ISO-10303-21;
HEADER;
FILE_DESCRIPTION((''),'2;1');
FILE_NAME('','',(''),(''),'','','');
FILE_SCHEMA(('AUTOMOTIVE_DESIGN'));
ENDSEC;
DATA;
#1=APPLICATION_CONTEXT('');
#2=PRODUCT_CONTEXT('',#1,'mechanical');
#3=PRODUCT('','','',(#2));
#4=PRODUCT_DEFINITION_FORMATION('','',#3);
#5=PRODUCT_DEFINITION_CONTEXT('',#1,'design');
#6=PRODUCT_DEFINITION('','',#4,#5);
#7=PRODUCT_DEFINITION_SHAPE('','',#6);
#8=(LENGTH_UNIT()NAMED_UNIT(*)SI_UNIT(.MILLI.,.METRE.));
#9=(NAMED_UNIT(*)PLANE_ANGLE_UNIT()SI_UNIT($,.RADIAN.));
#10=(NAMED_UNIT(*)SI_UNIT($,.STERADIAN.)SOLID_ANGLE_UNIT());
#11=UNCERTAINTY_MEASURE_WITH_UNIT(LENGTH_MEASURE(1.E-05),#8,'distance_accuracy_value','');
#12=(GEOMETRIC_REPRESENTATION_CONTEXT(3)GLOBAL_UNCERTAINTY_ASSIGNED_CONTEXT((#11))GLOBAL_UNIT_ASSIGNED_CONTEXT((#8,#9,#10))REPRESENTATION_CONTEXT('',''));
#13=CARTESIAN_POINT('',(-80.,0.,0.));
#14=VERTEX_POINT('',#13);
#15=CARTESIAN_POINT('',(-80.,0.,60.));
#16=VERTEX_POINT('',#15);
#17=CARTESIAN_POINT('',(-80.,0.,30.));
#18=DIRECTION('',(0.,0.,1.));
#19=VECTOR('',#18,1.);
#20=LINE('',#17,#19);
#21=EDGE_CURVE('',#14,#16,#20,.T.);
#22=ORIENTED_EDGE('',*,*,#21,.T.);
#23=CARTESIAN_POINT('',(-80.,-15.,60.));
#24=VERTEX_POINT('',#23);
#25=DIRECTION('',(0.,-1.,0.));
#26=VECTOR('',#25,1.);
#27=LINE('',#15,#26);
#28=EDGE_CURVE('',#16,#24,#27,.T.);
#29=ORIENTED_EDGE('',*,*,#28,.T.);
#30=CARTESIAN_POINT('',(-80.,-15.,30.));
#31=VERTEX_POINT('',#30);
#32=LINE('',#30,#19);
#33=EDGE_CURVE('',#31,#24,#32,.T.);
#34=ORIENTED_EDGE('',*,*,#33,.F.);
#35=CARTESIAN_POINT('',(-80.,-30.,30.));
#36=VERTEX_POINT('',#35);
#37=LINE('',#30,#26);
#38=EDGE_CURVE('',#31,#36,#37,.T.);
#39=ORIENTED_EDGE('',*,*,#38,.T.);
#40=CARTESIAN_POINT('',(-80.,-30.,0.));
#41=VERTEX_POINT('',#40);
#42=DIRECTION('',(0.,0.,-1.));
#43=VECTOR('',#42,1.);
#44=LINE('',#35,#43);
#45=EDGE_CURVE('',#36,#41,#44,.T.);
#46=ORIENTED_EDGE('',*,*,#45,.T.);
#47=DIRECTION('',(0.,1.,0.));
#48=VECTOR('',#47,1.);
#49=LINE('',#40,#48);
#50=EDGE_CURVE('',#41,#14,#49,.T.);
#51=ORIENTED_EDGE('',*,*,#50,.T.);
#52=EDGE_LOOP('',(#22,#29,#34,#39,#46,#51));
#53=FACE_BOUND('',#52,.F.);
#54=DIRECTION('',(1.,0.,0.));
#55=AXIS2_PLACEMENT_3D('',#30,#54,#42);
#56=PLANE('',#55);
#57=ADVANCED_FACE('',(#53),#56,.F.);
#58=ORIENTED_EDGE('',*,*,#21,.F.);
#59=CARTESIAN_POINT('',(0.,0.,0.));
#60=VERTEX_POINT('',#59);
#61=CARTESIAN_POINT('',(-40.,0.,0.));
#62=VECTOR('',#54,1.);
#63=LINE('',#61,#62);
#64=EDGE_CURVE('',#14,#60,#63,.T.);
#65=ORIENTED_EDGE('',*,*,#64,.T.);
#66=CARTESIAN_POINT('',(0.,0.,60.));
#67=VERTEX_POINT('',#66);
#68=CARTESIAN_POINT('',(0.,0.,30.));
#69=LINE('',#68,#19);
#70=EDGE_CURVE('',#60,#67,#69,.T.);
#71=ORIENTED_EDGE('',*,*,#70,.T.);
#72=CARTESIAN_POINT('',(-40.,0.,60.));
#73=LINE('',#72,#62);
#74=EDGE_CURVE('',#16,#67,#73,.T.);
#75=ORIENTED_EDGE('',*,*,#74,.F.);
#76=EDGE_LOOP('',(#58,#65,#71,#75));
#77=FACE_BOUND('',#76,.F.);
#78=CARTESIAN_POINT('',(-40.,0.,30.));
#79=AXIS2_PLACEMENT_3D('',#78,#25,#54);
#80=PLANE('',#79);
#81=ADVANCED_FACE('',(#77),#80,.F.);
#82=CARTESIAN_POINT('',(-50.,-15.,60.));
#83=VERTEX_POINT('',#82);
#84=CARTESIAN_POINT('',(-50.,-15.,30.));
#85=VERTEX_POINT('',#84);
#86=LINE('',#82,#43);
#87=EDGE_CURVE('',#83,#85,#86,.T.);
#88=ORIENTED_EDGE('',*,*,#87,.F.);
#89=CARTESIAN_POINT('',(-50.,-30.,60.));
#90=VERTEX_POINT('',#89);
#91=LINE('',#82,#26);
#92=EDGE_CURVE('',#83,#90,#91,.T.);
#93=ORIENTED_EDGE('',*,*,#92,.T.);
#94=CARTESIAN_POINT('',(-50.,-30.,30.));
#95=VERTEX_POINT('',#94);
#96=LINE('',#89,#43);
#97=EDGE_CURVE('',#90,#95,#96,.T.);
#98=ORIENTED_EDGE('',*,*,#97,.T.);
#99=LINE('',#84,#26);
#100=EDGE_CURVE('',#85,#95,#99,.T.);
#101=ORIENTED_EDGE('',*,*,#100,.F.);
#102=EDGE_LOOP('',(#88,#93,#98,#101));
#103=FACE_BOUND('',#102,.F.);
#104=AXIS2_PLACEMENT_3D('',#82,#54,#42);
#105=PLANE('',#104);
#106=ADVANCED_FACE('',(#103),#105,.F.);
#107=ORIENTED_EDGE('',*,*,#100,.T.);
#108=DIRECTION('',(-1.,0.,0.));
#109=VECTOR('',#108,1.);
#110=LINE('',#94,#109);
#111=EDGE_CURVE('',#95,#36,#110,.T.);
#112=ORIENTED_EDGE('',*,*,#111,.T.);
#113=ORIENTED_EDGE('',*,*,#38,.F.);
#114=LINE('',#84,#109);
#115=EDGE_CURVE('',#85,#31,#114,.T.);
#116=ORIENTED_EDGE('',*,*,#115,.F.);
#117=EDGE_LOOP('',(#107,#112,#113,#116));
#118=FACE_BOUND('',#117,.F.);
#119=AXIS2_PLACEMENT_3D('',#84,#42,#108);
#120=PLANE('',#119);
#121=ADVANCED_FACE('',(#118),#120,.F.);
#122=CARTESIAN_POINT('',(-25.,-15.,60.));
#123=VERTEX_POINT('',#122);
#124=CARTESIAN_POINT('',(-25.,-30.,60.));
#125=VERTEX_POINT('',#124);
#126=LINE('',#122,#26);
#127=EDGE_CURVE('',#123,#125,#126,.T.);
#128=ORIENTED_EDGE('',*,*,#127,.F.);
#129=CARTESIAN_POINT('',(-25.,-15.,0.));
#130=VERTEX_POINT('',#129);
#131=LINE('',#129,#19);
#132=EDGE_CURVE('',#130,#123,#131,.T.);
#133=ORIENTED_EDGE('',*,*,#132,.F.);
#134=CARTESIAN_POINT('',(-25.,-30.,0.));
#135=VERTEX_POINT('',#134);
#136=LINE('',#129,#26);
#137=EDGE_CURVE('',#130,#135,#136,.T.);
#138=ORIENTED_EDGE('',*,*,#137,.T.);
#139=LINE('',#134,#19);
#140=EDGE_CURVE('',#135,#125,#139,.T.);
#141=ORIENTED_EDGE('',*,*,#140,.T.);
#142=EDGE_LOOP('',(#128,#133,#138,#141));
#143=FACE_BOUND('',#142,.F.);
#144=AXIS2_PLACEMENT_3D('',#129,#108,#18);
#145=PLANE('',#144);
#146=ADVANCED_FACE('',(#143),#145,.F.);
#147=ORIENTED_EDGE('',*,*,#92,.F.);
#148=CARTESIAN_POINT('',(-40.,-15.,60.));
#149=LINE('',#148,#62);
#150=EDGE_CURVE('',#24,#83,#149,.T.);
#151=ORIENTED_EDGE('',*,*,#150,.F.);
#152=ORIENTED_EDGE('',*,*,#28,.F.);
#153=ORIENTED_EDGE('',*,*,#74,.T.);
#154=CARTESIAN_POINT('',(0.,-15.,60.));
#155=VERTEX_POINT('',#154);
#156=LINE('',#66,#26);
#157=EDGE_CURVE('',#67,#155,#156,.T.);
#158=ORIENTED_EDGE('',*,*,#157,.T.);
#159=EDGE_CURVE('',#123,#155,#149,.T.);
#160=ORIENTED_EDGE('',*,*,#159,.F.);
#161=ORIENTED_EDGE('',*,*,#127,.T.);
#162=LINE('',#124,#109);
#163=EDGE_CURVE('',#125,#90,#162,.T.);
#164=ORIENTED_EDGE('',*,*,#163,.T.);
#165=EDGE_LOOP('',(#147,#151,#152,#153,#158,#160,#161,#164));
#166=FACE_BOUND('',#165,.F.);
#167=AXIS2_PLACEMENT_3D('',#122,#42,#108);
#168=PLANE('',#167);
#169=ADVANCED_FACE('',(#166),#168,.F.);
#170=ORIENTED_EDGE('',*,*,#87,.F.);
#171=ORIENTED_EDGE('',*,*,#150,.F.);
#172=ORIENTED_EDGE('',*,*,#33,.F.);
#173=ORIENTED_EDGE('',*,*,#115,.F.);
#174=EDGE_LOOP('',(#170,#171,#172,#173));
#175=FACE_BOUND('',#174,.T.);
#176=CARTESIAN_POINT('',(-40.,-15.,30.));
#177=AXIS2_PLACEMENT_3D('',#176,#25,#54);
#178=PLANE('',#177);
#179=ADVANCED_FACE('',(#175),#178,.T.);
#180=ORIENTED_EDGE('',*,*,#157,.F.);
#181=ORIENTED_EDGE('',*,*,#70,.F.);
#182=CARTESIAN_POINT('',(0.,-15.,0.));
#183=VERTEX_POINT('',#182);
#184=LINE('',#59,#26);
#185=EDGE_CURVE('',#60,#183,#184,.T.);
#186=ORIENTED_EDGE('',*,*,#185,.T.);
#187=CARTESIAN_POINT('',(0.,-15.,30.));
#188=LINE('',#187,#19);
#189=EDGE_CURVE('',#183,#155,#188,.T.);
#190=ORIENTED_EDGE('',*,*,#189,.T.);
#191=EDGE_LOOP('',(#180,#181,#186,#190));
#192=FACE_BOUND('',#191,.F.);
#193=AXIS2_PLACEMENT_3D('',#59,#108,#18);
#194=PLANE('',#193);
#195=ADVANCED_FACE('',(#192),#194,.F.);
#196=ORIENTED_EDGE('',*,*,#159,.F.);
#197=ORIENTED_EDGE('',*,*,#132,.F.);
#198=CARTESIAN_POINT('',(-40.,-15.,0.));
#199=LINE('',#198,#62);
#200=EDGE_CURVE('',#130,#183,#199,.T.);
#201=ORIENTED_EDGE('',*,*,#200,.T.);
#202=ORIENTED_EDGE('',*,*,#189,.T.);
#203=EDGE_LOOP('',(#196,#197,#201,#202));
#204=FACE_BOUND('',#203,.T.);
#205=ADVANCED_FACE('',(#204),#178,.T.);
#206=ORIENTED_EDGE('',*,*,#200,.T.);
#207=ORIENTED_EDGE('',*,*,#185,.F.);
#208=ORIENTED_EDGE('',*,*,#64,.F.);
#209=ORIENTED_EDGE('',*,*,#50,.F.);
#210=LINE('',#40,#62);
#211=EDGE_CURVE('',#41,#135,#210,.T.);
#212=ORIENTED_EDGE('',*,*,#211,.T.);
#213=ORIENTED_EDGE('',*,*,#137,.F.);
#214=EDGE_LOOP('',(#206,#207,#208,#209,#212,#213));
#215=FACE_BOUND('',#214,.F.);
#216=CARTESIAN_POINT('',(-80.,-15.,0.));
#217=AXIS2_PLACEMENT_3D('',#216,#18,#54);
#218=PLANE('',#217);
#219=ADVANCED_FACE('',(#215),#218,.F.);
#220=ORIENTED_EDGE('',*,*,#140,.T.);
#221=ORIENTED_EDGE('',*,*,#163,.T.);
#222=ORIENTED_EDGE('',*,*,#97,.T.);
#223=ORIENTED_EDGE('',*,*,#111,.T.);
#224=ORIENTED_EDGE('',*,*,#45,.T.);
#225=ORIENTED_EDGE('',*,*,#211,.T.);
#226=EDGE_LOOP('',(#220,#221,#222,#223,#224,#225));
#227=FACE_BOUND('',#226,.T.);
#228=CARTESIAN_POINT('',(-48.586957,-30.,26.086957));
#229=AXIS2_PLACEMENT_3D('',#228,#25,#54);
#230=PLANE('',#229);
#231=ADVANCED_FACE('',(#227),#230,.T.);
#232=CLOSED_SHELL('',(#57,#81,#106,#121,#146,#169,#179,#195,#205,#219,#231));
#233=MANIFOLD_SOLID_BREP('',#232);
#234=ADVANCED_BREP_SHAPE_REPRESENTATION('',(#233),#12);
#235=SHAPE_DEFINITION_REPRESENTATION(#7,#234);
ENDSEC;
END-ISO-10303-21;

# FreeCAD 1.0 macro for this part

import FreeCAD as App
import Part
import Sketcher
from FreeCAD import Vector


def add_polygon(sketch, points):
    """Adds a closed chain of lines whose ends are joined by coincident constraints."""
    first, n = sketch.GeometryCount, len(points)
    for a, b in zip(points, points[1:] + points[:1]):
        sketch.addGeometry(Part.LineSegment(App.Vector(*a, 0), App.Vector(*b, 0)), False)
    for i in range(n):
        sketch.addConstraint(Sketcher.Constraint("Coincident", first + i, 2, first + (i + 1) % n, 1))

doc = App.newDocument("Part")
body = doc.addObject("PartDesign::Body", "Body")

sketch1 = body.newObject("Sketcher::SketchObject", "Sketch")
sketch1.AttachmentSupport = (doc.getObject("XZ_Plane"), [""])
sketch1.MapMode = "FlatFace"
add_polygon(sketch1, [(-80, 60), (-80, 0), (0, 0), (0, 60)])
sketch1.addConstraint([
    Sketcher.Constraint("Vertical", 0),
    Sketcher.Constraint("Horizontal", 1),
    Sketcher.Constraint("Vertical", 2),
    Sketcher.Constraint("Horizontal", 3),
    Sketcher.Constraint("Coincident", 1, 2, -1, 1),
    Sketcher.Constraint("DistanceX", 1, 1, 1, 2, 80.0),
    Sketcher.Constraint("DistanceY", 0, 2, 0, 1, 60.0),
])
pad1 = body.newObject("PartDesign::Pad", "Pad")
pad1.Profile = sketch1
pad1.Length = 15

sketch2 = body.newObject("Sketcher::SketchObject", "Sketch001")
sketch2.AttachmentSupport = (doc.getObject("XZ_Plane"), [""])
sketch2.MapMode = "FlatFace"
sketch2.AttachmentOffset = App.Placement(Vector(0, 0, 15), App.Rotation())
add_polygon(sketch2, [(-80, 0), (-25, 0), (-25, 60), (-50, 60), (-50, 30), (-80, 30)])
sketch2.addConstraint([
    Sketcher.Constraint("Horizontal", 0),
    Sketcher.Constraint("Vertical", 1),
    Sketcher.Constraint("Horizontal", 2),
    Sketcher.Constraint("Vertical", 3),
    Sketcher.Constraint("Horizontal", 4),
    Sketcher.Constraint("Vertical", 5),
    Sketcher.Constraint("PointOnObject", 0, 2, -1),
    Sketcher.Constraint("Equal", 4, 3),
    Sketcher.Constraint("Equal", 3, 5),
    Sketcher.Constraint("DistanceX", 0, 1, 0, 2, 55.0),
    Sketcher.Constraint("DistanceX", 2, 2, 2, 1, 25.0),
    Sketcher.Constraint("DistanceX", 0, 2, -1, 1, 25.0),
])
pad2 = body.newObject("PartDesign::Pad", "Pad001")
pad2.Profile = sketch2
pad2.Length = 15

doc.recompute()
